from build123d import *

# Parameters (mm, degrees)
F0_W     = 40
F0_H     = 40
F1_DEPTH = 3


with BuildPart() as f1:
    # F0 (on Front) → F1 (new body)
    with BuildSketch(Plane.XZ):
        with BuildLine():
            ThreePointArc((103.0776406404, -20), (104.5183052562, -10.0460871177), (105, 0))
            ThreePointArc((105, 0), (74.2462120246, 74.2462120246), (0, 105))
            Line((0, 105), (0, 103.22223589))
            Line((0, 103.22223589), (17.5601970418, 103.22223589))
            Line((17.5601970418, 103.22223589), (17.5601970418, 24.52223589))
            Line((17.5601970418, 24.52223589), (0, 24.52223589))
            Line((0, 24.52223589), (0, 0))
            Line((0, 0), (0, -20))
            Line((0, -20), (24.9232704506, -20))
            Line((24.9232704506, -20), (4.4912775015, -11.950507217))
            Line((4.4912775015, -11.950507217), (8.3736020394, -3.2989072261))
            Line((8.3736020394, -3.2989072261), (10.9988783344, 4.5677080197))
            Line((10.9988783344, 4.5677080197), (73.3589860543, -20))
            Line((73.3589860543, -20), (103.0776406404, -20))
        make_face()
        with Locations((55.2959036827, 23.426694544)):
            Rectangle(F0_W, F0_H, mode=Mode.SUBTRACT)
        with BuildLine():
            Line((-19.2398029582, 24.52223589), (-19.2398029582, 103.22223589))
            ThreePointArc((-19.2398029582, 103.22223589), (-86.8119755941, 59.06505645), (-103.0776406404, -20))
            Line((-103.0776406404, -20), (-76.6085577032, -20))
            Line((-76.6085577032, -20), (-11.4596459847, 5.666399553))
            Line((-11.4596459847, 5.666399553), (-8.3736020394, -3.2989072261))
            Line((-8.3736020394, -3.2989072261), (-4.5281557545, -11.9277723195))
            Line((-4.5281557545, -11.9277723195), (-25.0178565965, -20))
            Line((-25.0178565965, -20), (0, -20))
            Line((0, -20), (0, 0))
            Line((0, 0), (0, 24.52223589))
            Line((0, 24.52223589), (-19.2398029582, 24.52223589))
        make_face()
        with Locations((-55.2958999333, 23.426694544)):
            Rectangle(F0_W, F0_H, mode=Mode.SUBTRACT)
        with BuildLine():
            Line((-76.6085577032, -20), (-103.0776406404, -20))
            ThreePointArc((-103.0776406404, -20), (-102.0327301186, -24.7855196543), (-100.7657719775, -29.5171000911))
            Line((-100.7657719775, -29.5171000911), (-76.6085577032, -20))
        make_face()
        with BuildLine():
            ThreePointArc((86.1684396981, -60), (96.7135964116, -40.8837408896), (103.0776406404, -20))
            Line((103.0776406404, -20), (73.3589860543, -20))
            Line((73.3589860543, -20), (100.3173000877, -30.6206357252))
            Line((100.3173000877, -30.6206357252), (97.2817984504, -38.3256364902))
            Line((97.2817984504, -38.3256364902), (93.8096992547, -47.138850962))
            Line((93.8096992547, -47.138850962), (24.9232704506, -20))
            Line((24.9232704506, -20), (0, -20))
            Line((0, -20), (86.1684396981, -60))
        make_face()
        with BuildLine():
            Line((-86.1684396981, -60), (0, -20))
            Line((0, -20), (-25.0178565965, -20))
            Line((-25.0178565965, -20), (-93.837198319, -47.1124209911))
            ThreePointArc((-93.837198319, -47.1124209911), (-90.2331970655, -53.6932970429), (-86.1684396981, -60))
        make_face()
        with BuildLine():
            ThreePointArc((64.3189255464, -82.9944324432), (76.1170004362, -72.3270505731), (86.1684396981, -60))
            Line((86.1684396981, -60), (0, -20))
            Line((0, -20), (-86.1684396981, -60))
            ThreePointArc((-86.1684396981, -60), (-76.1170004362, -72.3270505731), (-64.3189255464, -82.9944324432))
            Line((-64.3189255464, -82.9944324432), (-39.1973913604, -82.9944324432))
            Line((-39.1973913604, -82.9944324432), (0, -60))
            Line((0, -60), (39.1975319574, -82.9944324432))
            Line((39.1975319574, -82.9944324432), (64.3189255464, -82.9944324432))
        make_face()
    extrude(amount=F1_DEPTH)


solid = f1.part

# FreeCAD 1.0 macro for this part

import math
import FreeCAD as App
import Part
import Sketcher

doc = App.newDocument("Part")
body = doc.addObject("PartDesign::Body", "Body")

# Sketch on XZ plane
sketch1 = body.newObject("Sketcher::SketchObject", "Sketch")
sketch1.AttachmentSupport = (doc.getObject("XZ_Plane"), [""])
sketch1.MapMode = "FlatFace"
sketch1.addGeometry(Part.ArcOfCircle(Part.Circle(App.Vector(0, 0, 0), App.Vector(0, 0, 1), 105), math.radians(-10.98), math.radians(0)), False)
sketch1.addGeometry(Part.ArcOfCircle(Part.Circle(App.Vector(0, 0, 0), App.Vector(0, 0, 1), 105), math.radians(0), math.radians(90)), False)
sketch1.addGeometry(Part.LineSegment(App.Vector(0, 105, 0), App.Vector(0, 103.2, 0)), False)
sketch1.addGeometry(Part.LineSegment(App.Vector(0, 103.2, 0), App.Vector(17.6, 103.2, 0)), False)
sketch1.addGeometry(Part.LineSegment(App.Vector(17.6, 103.2, 0), App.Vector(17.6, 24.5, 0)), False)
sketch1.addGeometry(Part.LineSegment(App.Vector(17.6, 24.5, 0), App.Vector(-19.2, 24.5, 0)), False)
sketch1.addGeometry(Part.LineSegment(App.Vector(-19.2, 24.5, 0), App.Vector(-19.2, 103.2, 0)), False)
sketch1.addGeometry(Part.ArcOfCircle(Part.Circle(App.Vector(0, 0, 0), App.Vector(0, 0, 1), 105), math.radians(101), math.radians(191)), False)
sketch1.addGeometry(Part.ArcOfCircle(Part.Circle(App.Vector(0, 0, 0), App.Vector(0, 0, 1), 105), math.radians(-169.02), math.radians(-163.67)), False)
sketch1.addGeometry(Part.LineSegment(App.Vector(-100.8, -29.5, 0), App.Vector(-11.5, 5.7, 0)), False)
sketch1.addGeometry(Part.LineSegment(App.Vector(-11.5, 5.7, 0), App.Vector(-8.4, -3.3, 0)), False)
sketch1.addGeometry(Part.LineSegment(App.Vector(-8.4, -3.3, 0), App.Vector(-4.5, -11.9, 0)), False)
sketch1.addGeometry(Part.LineSegment(App.Vector(-4.5, -11.9, 0), App.Vector(-25, -20, 0)), False)
sketch1.addGeometry(Part.LineSegment(App.Vector(-25, -20, 0), App.Vector(-93.8, -47.1, 0)), False)
sketch1.addGeometry(Part.ArcOfCircle(Part.Circle(App.Vector(0, 0, 0), App.Vector(0, 0, 1), 105), math.radians(-153.34), math.radians(-145.15)), False)
sketch1.addGeometry(Part.ArcOfCircle(Part.Circle(App.Vector(0, 0, 0), App.Vector(0, 0, 1), 105), math.radians(-145.15), math.radians(-127.77)), False)
sketch1.addGeometry(Part.LineSegment(App.Vector(-64.3, -83, 0), App.Vector(-39.2, -83, 0)), False)
sketch1.addGeometry(Part.LineSegment(App.Vector(-39.2, -83, 0), App.Vector(0, -60, 0)), False)
sketch1.addGeometry(Part.LineSegment(App.Vector(0, -60, 0), App.Vector(39.2, -83, 0)), False)
sketch1.addGeometry(Part.LineSegment(App.Vector(39.2, -83, 0), App.Vector(64.3, -83, 0)), False)
sketch1.addGeometry(Part.ArcOfCircle(Part.Circle(App.Vector(0, 0, 0), App.Vector(0, 0, 1), 105), math.radians(-52.23), math.radians(-34.85)), False)
sketch1.addGeometry(Part.ArcOfCircle(Part.Circle(App.Vector(0, 0, 0), App.Vector(0, 0, 1), 105), math.radians(-35), math.radians(-11)), False)
sketch1.addGeometry(Part.LineSegment(App.Vector(24.9, -20, 0), App.Vector(4.5, -12, 0)), False)
sketch1.addGeometry(Part.LineSegment(App.Vector(4.5, -12, 0), App.Vector(8.4, -3.3, 0)), False)
sketch1.addGeometry(Part.LineSegment(App.Vector(8.4, -3.3, 0), App.Vector(11, 4.6, 0)), False)
sketch1.addGeometry(Part.LineSegment(App.Vector(11, 4.6, 0), App.Vector(100.3, -30.6, 0)), False)
sketch1.addGeometry(Part.LineSegment(App.Vector(100.3, -30.6, 0), App.Vector(93.8, -47.1, 0)), False)
sketch1.addGeometry(Part.LineSegment(App.Vector(93.8, -47.1, 0), App.Vector(24.9, -20, 0)), False)
sketch1.addGeometry(Part.LineSegment(App.Vector(-35.3, 3.4, 0), App.Vector(-75.3, 3.4, 0)), False)
sketch1.addGeometry(Part.LineSegment(App.Vector(-75.3, 3.4, 0), App.Vector(-75.3, 43.4, 0)), False)
sketch1.addGeometry(Part.LineSegment(App.Vector(-75.3, 43.4, 0), App.Vector(-35.3, 43.4, 0)), False)
sketch1.addGeometry(Part.LineSegment(App.Vector(-35.3, 43.4, 0), App.Vector(-35.3, 3.4, 0)), False)
sketch1.addGeometry(Part.LineSegment(App.Vector(75.3, 3.4, 0), App.Vector(35.3, 3.4, 0)), False)
sketch1.addGeometry(Part.LineSegment(App.Vector(35.3, 3.4, 0), App.Vector(35.3, 43.4, 0)), False)
sketch1.addGeometry(Part.LineSegment(App.Vector(35.3, 43.4, 0), App.Vector(75.3, 43.4, 0)), False)
sketch1.addGeometry(Part.LineSegment(App.Vector(75.3, 43.4, 0), App.Vector(75.3, 3.4, 0)), False)
sketch1.addConstraint(Sketcher.Constraint("Tangent", 0, 2, 1, 1))
sketch1.addConstraint(Sketcher.Constraint("Coincident", 1, 2, 2, 1))
sketch1.addConstraint(Sketcher.Constraint("Coincident", 2, 2, 3, 1))
sketch1.addConstraint(Sketcher.Constraint("Coincident", 3, 2, 4, 1))
sketch1.addConstraint(Sketcher.Constraint("Coincident", 4, 2, 5, 1))
sketch1.addConstraint(Sketcher.Constraint("Coincident", 5, 2, 6, 1))
sketch1.addConstraint(Sketcher.Constraint("Coincident", 6, 2, 7, 1))
sketch1.addConstraint(Sketcher.Constraint("Tangent", 7, 2, 8, 1))
sketch1.addConstraint(Sketcher.Constraint("Coincident", 8, 2, 9, 1))
sketch1.addConstraint(Sketcher.Constraint("Coincident", 9, 2, 10, 1))
sketch1.addConstraint(Sketcher.Constraint("Coincident", 10, 2, 11, 1))
sketch1.addConstraint(Sketcher.Constraint("Coincident", 11, 2, 12, 1))
sketch1.addConstraint(Sketcher.Constraint("Coincident", 12, 2, 13, 1))
sketch1.addConstraint(Sketcher.Constraint("Coincident", 13, 2, 14, 1))
sketch1.addConstraint(Sketcher.Constraint("Tangent", 14, 2, 15, 1))
sketch1.addConstraint(Sketcher.Constraint("Coincident", 15, 2, 16, 1))
sketch1.addConstraint(Sketcher.Constraint("Coincident", 16, 2, 17, 1))
sketch1.addConstraint(Sketcher.Constraint("Coincident", 17, 2, 18, 1))
sketch1.addConstraint(Sketcher.Constraint("Coincident", 18, 2, 19, 1))
sketch1.addConstraint(Sketcher.Constraint("Coincident", 19, 2, 20, 1))
sketch1.addConstraint(Sketcher.Constraint("Tangent", 20, 2, 21, 1))
sketch1.addConstraint(Sketcher.Constraint("Tangent", 21, 2, 0, 1))
sketch1.addConstraint(Sketcher.Constraint("Coincident", 22, 2, 23, 1))
sketch1.addConstraint(Sketcher.Constraint("Coincident", 23, 2, 24, 1))
sketch1.addConstraint(Sketcher.Constraint("Coincident", 24, 2, 25, 1))
sketch1.addConstraint(Sketcher.Constraint("Coincident", 25, 2, 26, 1))
sketch1.addConstraint(Sketcher.Constraint("Coincident", 26, 2, 27, 1))
sketch1.addConstraint(Sketcher.Constraint("Coincident", 27, 2, 22, 1))
sketch1.addConstraint(Sketcher.Constraint("Coincident", 28, 2, 29, 1))
sketch1.addConstraint(Sketcher.Constraint("Coincident", 29, 2, 30, 1))
sketch1.addConstraint(Sketcher.Constraint("Coincident", 30, 2, 31, 1))
sketch1.addConstraint(Sketcher.Constraint("Coincident", 31, 2, 28, 1))
sketch1.addConstraint(Sketcher.Constraint("Coincident", 32, 2, 33, 1))
sketch1.addConstraint(Sketcher.Constraint("Coincident", 33, 2, 34, 1))
sketch1.addConstraint(Sketcher.Constraint("Coincident", 34, 2, 35, 1))
sketch1.addConstraint(Sketcher.Constraint("Coincident", 35, 2, 32, 1))
sketch1.addConstraint(Sketcher.Constraint("Vertical", 2))
sketch1.addConstraint(Sketcher.Constraint("Horizontal", 3))
sketch1.addConstraint(Sketcher.Constraint("Vertical", 4))
sketch1.addConstraint(Sketcher.Constraint("Horizontal", 5))
sketch1.addConstraint(Sketcher.Constraint("Vertical", 6))
sketch1.addConstraint(Sketcher.Constraint("Horizontal", 16))
sketch1.addConstraint(Sketcher.Constraint("Horizontal", 19))
sketch1.addConstraint(Sketcher.Constraint("Horizontal", 28))
sketch1.addConstraint(Sketcher.Constraint("Vertical", 29))
sketch1.addConstraint(Sketcher.Constraint("Horizontal", 30))
sketch1.addConstraint(Sketcher.Constraint("Vertical", 31))
sketch1.addConstraint(Sketcher.Constraint("Horizontal", 32))
sketch1.addConstraint(Sketcher.Constraint("Vertical", 33))
sketch1.addConstraint(Sketcher.Constraint("Horizontal", 34))
sketch1.addConstraint(Sketcher.Constraint("Vertical", 35))
sketch1.addConstraint(Sketcher.Constraint("Coincident", 0, 3, -1, 1))
sketch1.addConstraint(Sketcher.Constraint("Coincident", 7, 3, -1, 1))
sketch1.addConstraint(Sketcher.Constraint("Coincident", 14, 3, -1, 1))
sketch1.addConstraint(Sketcher.Constraint("Coincident", 20, 3, -1, 1))
sketch1.addConstraint(Sketcher.Constraint("Equal", 0, 1))
sketch1.addConstraint(Sketcher.Constraint("Equal", 1, 7))
sketch1.addConstraint(Sketcher.Constraint("Equal", 7, 8))
sketch1.addConstraint(Sketcher.Constraint("Equal", 8, 14))
sketch1.addConstraint(Sketcher.Constraint("Equal", 14, 15))
sketch1.addConstraint(Sketcher.Constraint("Symmetric", 10, 2, 23, 2, -2))
sketch1.addConstraint(Sketcher.Constraint("Symmetric", 31, 2, 32, 2, -2))
sketch1.addConstraint(Sketcher.Constraint("Symmetric", 29, 2, 34, 2, -2))
sketch1.addConstraint(Sketcher.Constraint("PointOnObject", 0, 2, -1))
sketch1.addConstraint(Sketcher.Constraint("PointOnObject", 1, 2, -2))
sketch1.addConstraint(Sketcher.Constraint("PointOnObject", 17, 2, -2))
sketch1.addConstraint(Sketcher.Constraint("Parallel", 9, 12))
sketch1.addConstraint(Sketcher.Constraint("Parallel", 12, 13))
sketch1.addConstraint(Sketcher.Constraint("Parallel", 22, 25))
sketch1.addConstraint(Sketcher.Constraint("Perpendicular", 25, 26))
sketch1.addConstraint(Sketcher.Constraint("Perpendicular", 26, 27))
sketch1.addConstraint(Sketcher.Constraint("Horizontal", 3, 2, 6, 2))
sketch1.addConstraint(Sketcher.Constraint("Horizontal", 7, 2, 12, 2))
sketch1.addConstraint(Sketcher.Constraint("Horizontal", 14, 2, 17, 2))
sketch1.addConstraint(Sketcher.Constraint("Horizontal", 16, 2, 18, 2))
sketch1.addConstraint(Sketcher.Constraint("Horizontal", 17, 2, 20, 2))
sketch1.addConstraint(Sketcher.Constraint("Horizontal", 12, 2, 21, 2))
sketch1.addConstraint(Sketcher.Constraint("Horizontal", 21, 2, 27, 2))
sketch1.addConstraint(Sketcher.Constraint("Equal", 34, 29))
sketch1.addConstraint(Sketcher.Constraint("Radius", 0, 105.0))
sketch1.addConstraint(Sketcher.Constraint("DistanceX", 28, 2, 28, 1, 40.0))
sketch1.addConstraint(Sketcher.Constraint("Distance", 25, 96.0))
sketch1.addConstraint(Sketcher.Constraint("DistanceX", 5, 2, 5, 1, 36.8))
sketch1.addConstraint(Sketcher.Constraint("DistanceY", 4, 2, 4, 1, 78.7))
sketch1.addConstraint(Sketcher.Constraint("DistanceY", 7, 2, -1, 1, 20.0))
sketch1.addConstraint(Sketcher.Constraint("DistanceY", 14, 2, -1, 1, 60.0))
sketch1.addConstraint(Sketcher.Constraint("DistanceY", 8, 2, -1, 1, 29.5171))
sketch1.addConstraint(Sketcher.Constraint("DistanceY", -1, 1, 9, 2, 5.6664))
sketch1.addConstraint(Sketcher.Constraint("DistanceX", 13, 2, -1, 1, 93.837198))
sketch1.addConstraint(Sketcher.Constraint("DistanceX", -1, 1, 25, 2, 100.3173))
sketch1.addConstraint(Sketcher.Constraint("DistanceX", -1, 1, 26, 2, 93.809699))
sketch1.addConstraint(Sketcher.Constraint("DistanceX", 28, 2, -1, 1, 75.2959))
sketch1.addConstraint(Sketcher.Constraint("DistanceX", 12, 2, 11, 2, 20.489701))
sketch1.addConstraint(Sketcher.Constraint("DistanceX", 8, 3, 23, 2, 8.373602))
sketch1.addConstraint(Sketcher.Constraint("DistanceY", 10, 2, 30, 2, 46.725602))
sketch1.addConstraint(Sketcher.Constraint("DistanceY", 22, 2, 32, 2, 15.377202))
sketch1.addConstraint(Sketcher.Constraint("Distance", 10, 9.481582))
sketch1.addConstraint(Sketcher.Constraint("Distance", 12, 22.022459))
sketch1.addConstraint(Sketcher.Constraint("Distance", 26, 17.753881))
sketch1.addConstraint(Sketcher.Constraint("DistanceX", 3, 1, 3, 2, 17.560197))
sketch1.addConstraint(Sketcher.Constraint("DistanceX", 16, 1, 16, 2, 25.121534))
sketch1.addConstraint(Sketcher.Constraint("DistanceX", 19, 1, 19, 2, 25.121394))
sketch1.addConstraint(Sketcher.Constraint("DistanceX", 16, 2, -1, 1, 39.197391))
sketch1.addConstraint(Sketcher.Constraint("DistanceY", -1, 1, 24, 2, 4.567708))
pad1 = body.newObject("PartDesign::Pad", "Pad")
pad1.Profile = sketch1
pad1.Length = 3

doc.recompute()
